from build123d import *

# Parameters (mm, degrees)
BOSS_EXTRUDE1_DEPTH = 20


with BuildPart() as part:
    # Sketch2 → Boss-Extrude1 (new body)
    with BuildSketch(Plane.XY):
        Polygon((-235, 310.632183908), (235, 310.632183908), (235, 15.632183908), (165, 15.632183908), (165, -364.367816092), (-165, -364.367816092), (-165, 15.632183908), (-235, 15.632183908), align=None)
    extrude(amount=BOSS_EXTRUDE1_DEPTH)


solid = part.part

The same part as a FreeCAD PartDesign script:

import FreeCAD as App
import Part
import Sketcher
from FreeCAD import Vector
Q = App.Units.Quantity

doc = App.newDocument("Part")
params = doc.addObject("Spreadsheet::Sheet", "Params")
for row, (alias, value) in enumerate([
    ("sketch1_width", "470 mm"),
    ("sketch1_width2", "70 mm"),
    ("sketch1_height", "295 mm"),
    ("sketch1_height2", "380 mm"),
    ("pad1_length", "20 mm"),
], start=1):
    params.set(f"A{row}", alias)
    params.set(f"B{row}", "=" + value)
    params.setAlias(f"B{row}", alias)

body = doc.addObject("PartDesign::Body", "Body")

sketch1 = body.newObject("Sketcher::SketchObject", "Sketch")
sketch1.AttachmentSupport = (doc.getObject("XY_Plane"), [""])
sketch1.MapMode = "FlatFace"
sketch1.addGeometry(Part.LineSegment(Vector(235, 311, 0), Vector(-235, 311, 0)), False)
sketch1.addGeometry(Part.LineSegment(Vector(-235, 311, 0), Vector(-235, 16, 0)), False)
sketch1.addGeometry(Part.LineSegment(Vector(-235, 16, 0), Vector(-165, 16, 0)), False)
sketch1.addGeometry(Part.LineSegment(Vector(-165, 16, 0), Vector(-165, -364, 0)), False)
sketch1.addGeometry(Part.LineSegment(Vector(-165, -364, 0), Vector(165, -364, 0)), False)
sketch1.addGeometry(Part.LineSegment(Vector(165, -364, 0), Vector(165, 16, 0)), False)
sketch1.addGeometry(Part.LineSegment(Vector(165, 16, 0), Vector(235, 16, 0)), False)
sketch1.addGeometry(Part.LineSegment(Vector(235, 16, 0), Vector(235, 311, 0)), False)
sketch1.addConstraint(Sketcher.Constraint("Coincident", 0, 2, 1, 1))
sketch1.addConstraint(Sketcher.Constraint("Coincident", 1, 2, 2, 1))
sketch1.addConstraint(Sketcher.Constraint("Coincident", 2, 2, 3, 1))
sketch1.addConstraint(Sketcher.Constraint("Coincident", 3, 2, 4, 1))
sketch1.addConstraint(Sketcher.Constraint("Coincident", 4, 2, 5, 1))
sketch1.addConstraint(Sketcher.Constraint("Coincident", 5, 2, 6, 1))
sketch1.addConstraint(Sketcher.Constraint("Coincident", 6, 2, 7, 1))
sketch1.addConstraint(Sketcher.Constraint("Coincident", 7, 2, 0, 1))
sketch1.addConstraint(Sketcher.Constraint("Horizontal", 0))
sketch1.addConstraint(Sketcher.Constraint("Vertical", 1))
sketch1.addConstraint(Sketcher.Constraint("Horizontal", 2))
sketch1.addConstraint(Sketcher.Constraint("Vertical", 3))
sketch1.addConstraint(Sketcher.Constraint("Horizontal", 4))
sketch1.addConstraint(Sketcher.Constraint("Vertical", 5))
sketch1.addConstraint(Sketcher.Constraint("Horizontal", 6))
sketch1.addConstraint(Sketcher.Constraint("Vertical", 7))
sketch1.addConstraint(Sketcher.Constraint("Symmetric", 2, 2, 5, 2, -2))
sketch1.addConstraint(Sketcher.Constraint("Equal", 2, 6))
sketch1.addConstraint(Sketcher.Constraint("DistanceX", 0, 2, 0, 1, Q("470 mm")))
sketch1.addConstraint(Sketcher.Constraint("DistanceX", 2, 1, 2, 2, Q("70 mm")))
sketch1.addConstraint(Sketcher.Constraint("DistanceY", 1, 2, 1, 1, Q("295 mm")))
sketch1.addConstraint(Sketcher.Constraint("DistanceY", 3, 2, 3, 1, Q("380 mm")))
sketch1.addConstraint(Sketcher.Constraint("DistanceY", -1, 1, 0, 2, Q("310.632184 mm")))
sketch1.setExpression("Constraints[18]", "Params.sketch1_width")
sketch1.setExpression("Constraints[19]", "Params.sketch1_width2")
sketch1.setExpression("Constraints[20]", "Params.sketch1_height")
sketch1.setExpression("Constraints[21]", "Params.sketch1_height2")
pad1 = body.newObject("PartDesign::Pad", "Pad")
pad1.Profile = sketch1
pad1.setExpression("Length", "Params.pad1_length")

doc.recompute()
